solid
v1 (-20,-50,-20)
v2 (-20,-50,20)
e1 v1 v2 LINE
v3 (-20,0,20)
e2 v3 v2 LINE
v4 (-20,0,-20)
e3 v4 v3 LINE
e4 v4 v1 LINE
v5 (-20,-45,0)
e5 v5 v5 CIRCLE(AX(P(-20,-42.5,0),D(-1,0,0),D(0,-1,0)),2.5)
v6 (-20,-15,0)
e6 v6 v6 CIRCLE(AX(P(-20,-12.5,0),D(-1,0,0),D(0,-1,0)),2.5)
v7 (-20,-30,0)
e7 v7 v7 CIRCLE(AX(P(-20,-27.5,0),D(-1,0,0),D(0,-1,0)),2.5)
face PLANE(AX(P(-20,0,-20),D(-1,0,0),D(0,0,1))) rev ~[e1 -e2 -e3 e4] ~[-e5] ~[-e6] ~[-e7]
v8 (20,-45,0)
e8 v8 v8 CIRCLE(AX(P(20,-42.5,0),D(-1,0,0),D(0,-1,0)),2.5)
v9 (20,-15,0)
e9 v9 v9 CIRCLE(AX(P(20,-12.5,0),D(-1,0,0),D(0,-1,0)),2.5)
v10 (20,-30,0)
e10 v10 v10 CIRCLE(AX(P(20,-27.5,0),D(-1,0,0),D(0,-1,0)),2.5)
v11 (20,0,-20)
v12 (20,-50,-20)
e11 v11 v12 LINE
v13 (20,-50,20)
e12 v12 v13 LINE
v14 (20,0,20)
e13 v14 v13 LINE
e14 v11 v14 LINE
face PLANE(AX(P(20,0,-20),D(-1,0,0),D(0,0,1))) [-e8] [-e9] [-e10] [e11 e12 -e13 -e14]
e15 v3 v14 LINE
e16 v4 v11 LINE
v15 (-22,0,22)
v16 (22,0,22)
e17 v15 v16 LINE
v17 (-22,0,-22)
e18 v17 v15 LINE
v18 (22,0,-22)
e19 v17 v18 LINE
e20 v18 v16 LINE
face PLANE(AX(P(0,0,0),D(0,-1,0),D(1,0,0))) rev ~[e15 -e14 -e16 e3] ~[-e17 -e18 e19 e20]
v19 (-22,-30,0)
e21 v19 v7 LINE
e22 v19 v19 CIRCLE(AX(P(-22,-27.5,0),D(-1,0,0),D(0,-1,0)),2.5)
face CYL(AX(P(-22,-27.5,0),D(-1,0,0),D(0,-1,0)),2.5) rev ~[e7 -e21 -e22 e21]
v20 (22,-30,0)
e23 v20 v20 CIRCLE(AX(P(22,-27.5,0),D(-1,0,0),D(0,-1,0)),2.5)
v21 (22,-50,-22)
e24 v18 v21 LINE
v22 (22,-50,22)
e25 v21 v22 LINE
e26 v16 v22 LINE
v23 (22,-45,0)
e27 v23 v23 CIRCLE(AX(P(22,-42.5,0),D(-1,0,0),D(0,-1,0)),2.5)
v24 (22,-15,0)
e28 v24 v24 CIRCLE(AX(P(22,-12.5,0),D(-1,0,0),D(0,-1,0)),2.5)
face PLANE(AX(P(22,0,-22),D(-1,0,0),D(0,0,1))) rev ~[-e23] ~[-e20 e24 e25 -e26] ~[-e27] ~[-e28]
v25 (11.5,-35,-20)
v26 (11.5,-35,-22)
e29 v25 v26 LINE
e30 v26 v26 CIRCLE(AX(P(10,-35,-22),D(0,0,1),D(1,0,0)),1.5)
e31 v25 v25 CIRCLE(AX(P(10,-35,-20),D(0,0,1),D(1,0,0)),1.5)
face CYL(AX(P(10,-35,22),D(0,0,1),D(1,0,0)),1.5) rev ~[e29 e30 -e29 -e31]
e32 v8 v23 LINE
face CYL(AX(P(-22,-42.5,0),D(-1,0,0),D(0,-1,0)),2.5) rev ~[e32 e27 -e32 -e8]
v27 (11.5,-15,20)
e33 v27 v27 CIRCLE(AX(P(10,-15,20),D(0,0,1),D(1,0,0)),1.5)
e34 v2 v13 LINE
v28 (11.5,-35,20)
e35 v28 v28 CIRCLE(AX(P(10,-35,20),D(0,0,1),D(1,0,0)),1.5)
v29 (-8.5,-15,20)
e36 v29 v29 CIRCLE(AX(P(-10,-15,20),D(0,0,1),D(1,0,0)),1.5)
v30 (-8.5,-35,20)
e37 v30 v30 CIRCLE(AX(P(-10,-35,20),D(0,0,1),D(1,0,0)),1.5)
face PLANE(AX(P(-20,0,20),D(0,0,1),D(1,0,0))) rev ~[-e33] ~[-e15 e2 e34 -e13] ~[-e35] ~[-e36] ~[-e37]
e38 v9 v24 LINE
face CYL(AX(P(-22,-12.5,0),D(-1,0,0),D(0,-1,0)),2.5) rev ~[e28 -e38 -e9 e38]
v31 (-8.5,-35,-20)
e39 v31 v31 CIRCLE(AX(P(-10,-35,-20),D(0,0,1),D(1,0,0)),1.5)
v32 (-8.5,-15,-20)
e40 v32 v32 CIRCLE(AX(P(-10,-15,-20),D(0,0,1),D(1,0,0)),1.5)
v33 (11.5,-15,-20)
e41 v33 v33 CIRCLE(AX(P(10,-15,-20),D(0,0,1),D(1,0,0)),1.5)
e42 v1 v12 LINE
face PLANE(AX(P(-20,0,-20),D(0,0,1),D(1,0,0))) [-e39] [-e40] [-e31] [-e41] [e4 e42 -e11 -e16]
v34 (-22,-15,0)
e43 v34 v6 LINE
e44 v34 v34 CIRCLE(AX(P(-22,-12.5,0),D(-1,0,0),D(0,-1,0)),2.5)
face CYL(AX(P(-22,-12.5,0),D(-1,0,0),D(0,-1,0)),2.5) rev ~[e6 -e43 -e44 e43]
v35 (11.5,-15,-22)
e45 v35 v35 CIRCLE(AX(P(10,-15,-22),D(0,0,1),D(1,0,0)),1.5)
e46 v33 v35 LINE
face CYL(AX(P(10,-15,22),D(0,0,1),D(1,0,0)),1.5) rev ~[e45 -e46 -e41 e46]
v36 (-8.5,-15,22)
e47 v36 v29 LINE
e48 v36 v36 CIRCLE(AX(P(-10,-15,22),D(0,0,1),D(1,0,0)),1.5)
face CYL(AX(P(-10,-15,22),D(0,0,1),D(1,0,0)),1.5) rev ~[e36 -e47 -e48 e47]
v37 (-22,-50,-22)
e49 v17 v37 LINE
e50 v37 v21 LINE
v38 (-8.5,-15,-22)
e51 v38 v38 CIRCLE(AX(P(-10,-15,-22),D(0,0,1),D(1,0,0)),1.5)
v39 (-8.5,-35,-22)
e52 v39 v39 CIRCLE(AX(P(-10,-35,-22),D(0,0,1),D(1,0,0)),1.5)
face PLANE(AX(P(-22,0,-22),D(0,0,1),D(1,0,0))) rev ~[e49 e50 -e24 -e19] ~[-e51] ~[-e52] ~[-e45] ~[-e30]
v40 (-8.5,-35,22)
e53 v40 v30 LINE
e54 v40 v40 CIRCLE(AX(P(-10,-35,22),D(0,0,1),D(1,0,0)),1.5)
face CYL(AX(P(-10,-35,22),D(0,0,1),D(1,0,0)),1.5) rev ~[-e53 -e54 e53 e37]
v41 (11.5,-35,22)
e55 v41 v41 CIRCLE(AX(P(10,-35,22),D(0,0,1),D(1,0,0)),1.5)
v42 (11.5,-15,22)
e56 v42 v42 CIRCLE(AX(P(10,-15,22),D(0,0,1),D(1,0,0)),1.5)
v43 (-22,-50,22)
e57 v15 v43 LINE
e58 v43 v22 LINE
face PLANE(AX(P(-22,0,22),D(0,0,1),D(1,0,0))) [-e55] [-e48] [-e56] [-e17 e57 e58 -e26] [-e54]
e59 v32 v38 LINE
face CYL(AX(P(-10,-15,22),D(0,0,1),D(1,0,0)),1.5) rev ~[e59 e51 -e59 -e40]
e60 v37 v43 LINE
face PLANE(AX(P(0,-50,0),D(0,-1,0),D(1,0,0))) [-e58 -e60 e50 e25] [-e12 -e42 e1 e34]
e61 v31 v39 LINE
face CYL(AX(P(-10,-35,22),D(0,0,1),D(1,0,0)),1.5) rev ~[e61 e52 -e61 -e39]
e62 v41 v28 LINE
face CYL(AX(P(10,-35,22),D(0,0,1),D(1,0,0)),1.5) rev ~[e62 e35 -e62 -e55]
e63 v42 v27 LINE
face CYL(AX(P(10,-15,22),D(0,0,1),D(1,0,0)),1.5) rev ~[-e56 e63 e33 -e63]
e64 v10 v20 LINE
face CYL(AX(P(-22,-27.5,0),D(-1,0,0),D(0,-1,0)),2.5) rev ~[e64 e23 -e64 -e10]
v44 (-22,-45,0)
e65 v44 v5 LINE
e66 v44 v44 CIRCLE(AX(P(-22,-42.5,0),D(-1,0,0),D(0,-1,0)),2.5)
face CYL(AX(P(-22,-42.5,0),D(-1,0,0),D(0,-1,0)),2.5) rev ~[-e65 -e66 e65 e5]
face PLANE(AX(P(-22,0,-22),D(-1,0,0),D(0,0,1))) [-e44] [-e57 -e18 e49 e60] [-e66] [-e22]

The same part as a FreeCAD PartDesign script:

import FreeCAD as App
import Part
import Sketcher

V = App.Vector

doc = App.newDocument("Part")
params = doc.addObject("Spreadsheet::Sheet", "Params")
for row, (alias, value) in enumerate([
    ("sketch1_width", "44 mm"),
    ("sketch1_width2", "40 mm"),
    ("pad1_length", "50 mm"),
    ("sketch2_diameter", "3 mm"),
    ("sketch3_diameter", "5 mm"),
], start=1):
    params.set(f"A{row}", alias)
    params.set(f"B{row}", "=" + value)
    params.setAlias(f"B{row}", alias)

body = doc.addObject("PartDesign::Body", "Body")

# Sketch on XZ plane
sketch1 = doc.addObject("Sketcher::SketchObject", "Sketch")
body.addObject(sketch1)
sketch1.AttachmentSupport = (doc.XZ_Plane, [""])
sketch1.MapMode = "FlatFace"
sketch1.addGeometry([
    Part.LineSegment(V(-22, 22, 0), V(-22, -22, 0)),  # 0
    Part.LineSegment(V(-22, -22, 0), V(22, -22, 0)),  # 1
    Part.LineSegment(V(22, -22, 0), V(22, 22, 0)),  # 2
    Part.LineSegment(V(22, 22, 0), V(-22, 22, 0)),  # 3
    Part.LineSegment(V(20, -20, 0), V(-20, -20, 0)),  # 4
    Part.LineSegment(V(-20, -20, 0), V(-20, 20, 0)),  # 5
    Part.LineSegment(V(-20, 20, 0), V(20, 20, 0)),  # 6
    Part.LineSegment(V(20, 20, 0), V(20, -20, 0)),  # 7
], False)
sketch1.addConstraint([
    Sketcher.Constraint("Coincident", 0, 2, 1, 1),
    Sketcher.Constraint("Coincident", 1, 2, 2, 1),
    Sketcher.Constraint("Coincident", 2, 2, 3, 1),
    Sketcher.Constraint("Coincident", 3, 2, 0, 1),
    Sketcher.Constraint("Coincident", 4, 2, 5, 1),
    Sketcher.Constraint("Coincident", 5, 2, 6, 1),
    Sketcher.Constraint("Coincident", 6, 2, 7, 1),
    Sketcher.Constraint("Coincident", 7, 2, 4, 1),
    Sketcher.Constraint("Vertical", 0),
    Sketcher.Constraint("Horizontal", 1),
    Sketcher.Constraint("Vertical", 2),
    Sketcher.Constraint("Horizontal", 3),
    Sketcher.Constraint("Horizontal", 4),
    Sketcher.Constraint("Vertical", 5),
    Sketcher.Constraint("Horizontal", 6),
    Sketcher.Constraint("Vertical", 7),
    Sketcher.Constraint("Symmetric", 0, 2, 2, 2, -1, 1),
    Sketcher.Constraint("Symmetric", 4, 2, 6, 2, -1, 1),
    Sketcher.Constraint("Equal", 3, 0),
    Sketcher.Constraint("Equal", 6, 5),
    Sketcher.Constraint("DistanceX", 1, 1, 1, 2, 44.0),
    Sketcher.Constraint("DistanceX", 4, 2, 4, 1, 40.0),
])
sketch1.setExpression("Constraints[20]", "Params.sketch1_width")
sketch1.setExpression("Constraints[21]", "Params.sketch1_width2")
pad1 = doc.addObject("PartDesign::Pad", "Pad")
body.addObject(pad1)
pad1.Profile = sketch1
pad1.setExpression("Length", "Params.pad1_length")

# Sketch on XY plane
sketch2 = doc.addObject("Sketcher::SketchObject", "Sketch001")
body.addObject(sketch2)
sketch2.AttachmentSupport = (doc.XY_Plane, [""])
sketch2.MapMode = "FlatFace"
sketch2.AttachmentOffset = App.Placement(V(0, 0, 22), App.Rotation())
sketch2.addGeometry([
    Part.Circle(V(10, -15, 0), V(0, 0, 1), 1.5),
    Part.Circle(V(10, -35, 0), V(0, 0, 1), 1.5),
    Part.Circle(V(-10, -35, 0), V(0, 0, 1), 1.5),
    Part.Circle(V(-10, -15, 0), V(0, 0, 1), 1.5),
], False)
sketch2.addConstraint([
    Sketcher.Constraint("Equal", 0, 1),
    Sketcher.Constraint("Equal", 1, 2),
    Sketcher.Constraint("Equal", 2, 3),
    Sketcher.Constraint("Symmetric", 1, 3, 2, 3, -2),
    Sketcher.Constraint("Symmetric", 0, 3, 3, 3, -2),
    Sketcher.Constraint("Vertical", 0, 3, 1, 3),
    Sketcher.Constraint("Diameter", 0, 3.0),
    Sketcher.Constraint("DistanceX", -1, 1, 0, 3, 10.0),
    Sketcher.Constraint("DistanceY", 0, 3, -1, 1, 15.0),
    Sketcher.Constraint("DistanceY", 1, 3, -1, 1, 35.0),
])
sketch2.setExpression("Constraints[6]", "Params.sketch2_diameter")
pocket1 = doc.addObject("PartDesign::Pocket", "Pocket")
body.addObject(pocket1)
pocket1.Profile = sketch2
pocket1.Type = "ThroughAll"

# Sketch on YZ plane
sketch3 = doc.addObject("Sketcher::SketchObject", "Sketch002")
body.addObject(sketch3)
sketch3.AttachmentSupport = (doc.YZ_Plane, [""])
sketch3.MapMode = "FlatFace"
sketch3.AttachmentOffset = App.Placement(V(0, 0, -22), App.Rotation())
sketch3.addGeometry([
    Part.Circle(V(-12.5, 0, 0), V(0, 0, 1), 2.5),
    Part.Circle(V(-27.5, 0, 0), V(0, 0, 1), 2.5),
    Part.Circle(V(-42.5, 0, 0), V(0, 0, 1), 2.5),
], False)
sketch3.addConstraint([
    Sketcher.Constraint("Equal", 0, 1),
    Sketcher.Constraint("Equal", 1, 2),
    Sketcher.Constraint("PointOnObject", 0, 3, -1),
    Sketcher.Constraint("PointOnObject", 1, 3, -1),
    Sketcher.Constraint("PointOnObject", 2, 3, -1),
    Sketcher.Constraint("Diameter", 0, 5.0),
    Sketcher.Constraint("DistanceX", 1, 3, 0, 3, 15.0),
    Sketcher.Constraint("DistanceX", 2, 3, 1, 3, 15.0),
    Sketcher.Constraint("DistanceX", 0, 3, -1, 1, 12.5),
])
sketch3.setExpression("Constraints[5]", "Params.sketch3_diameter")
pocket2 = doc.addObject("PartDesign::Pocket", "Pocket001")
body.addObject(pocket2)
pocket2.Profile = sketch3
pocket2.Type = "ThroughAll"
pocket2.Reversed = True

doc.recompute()
